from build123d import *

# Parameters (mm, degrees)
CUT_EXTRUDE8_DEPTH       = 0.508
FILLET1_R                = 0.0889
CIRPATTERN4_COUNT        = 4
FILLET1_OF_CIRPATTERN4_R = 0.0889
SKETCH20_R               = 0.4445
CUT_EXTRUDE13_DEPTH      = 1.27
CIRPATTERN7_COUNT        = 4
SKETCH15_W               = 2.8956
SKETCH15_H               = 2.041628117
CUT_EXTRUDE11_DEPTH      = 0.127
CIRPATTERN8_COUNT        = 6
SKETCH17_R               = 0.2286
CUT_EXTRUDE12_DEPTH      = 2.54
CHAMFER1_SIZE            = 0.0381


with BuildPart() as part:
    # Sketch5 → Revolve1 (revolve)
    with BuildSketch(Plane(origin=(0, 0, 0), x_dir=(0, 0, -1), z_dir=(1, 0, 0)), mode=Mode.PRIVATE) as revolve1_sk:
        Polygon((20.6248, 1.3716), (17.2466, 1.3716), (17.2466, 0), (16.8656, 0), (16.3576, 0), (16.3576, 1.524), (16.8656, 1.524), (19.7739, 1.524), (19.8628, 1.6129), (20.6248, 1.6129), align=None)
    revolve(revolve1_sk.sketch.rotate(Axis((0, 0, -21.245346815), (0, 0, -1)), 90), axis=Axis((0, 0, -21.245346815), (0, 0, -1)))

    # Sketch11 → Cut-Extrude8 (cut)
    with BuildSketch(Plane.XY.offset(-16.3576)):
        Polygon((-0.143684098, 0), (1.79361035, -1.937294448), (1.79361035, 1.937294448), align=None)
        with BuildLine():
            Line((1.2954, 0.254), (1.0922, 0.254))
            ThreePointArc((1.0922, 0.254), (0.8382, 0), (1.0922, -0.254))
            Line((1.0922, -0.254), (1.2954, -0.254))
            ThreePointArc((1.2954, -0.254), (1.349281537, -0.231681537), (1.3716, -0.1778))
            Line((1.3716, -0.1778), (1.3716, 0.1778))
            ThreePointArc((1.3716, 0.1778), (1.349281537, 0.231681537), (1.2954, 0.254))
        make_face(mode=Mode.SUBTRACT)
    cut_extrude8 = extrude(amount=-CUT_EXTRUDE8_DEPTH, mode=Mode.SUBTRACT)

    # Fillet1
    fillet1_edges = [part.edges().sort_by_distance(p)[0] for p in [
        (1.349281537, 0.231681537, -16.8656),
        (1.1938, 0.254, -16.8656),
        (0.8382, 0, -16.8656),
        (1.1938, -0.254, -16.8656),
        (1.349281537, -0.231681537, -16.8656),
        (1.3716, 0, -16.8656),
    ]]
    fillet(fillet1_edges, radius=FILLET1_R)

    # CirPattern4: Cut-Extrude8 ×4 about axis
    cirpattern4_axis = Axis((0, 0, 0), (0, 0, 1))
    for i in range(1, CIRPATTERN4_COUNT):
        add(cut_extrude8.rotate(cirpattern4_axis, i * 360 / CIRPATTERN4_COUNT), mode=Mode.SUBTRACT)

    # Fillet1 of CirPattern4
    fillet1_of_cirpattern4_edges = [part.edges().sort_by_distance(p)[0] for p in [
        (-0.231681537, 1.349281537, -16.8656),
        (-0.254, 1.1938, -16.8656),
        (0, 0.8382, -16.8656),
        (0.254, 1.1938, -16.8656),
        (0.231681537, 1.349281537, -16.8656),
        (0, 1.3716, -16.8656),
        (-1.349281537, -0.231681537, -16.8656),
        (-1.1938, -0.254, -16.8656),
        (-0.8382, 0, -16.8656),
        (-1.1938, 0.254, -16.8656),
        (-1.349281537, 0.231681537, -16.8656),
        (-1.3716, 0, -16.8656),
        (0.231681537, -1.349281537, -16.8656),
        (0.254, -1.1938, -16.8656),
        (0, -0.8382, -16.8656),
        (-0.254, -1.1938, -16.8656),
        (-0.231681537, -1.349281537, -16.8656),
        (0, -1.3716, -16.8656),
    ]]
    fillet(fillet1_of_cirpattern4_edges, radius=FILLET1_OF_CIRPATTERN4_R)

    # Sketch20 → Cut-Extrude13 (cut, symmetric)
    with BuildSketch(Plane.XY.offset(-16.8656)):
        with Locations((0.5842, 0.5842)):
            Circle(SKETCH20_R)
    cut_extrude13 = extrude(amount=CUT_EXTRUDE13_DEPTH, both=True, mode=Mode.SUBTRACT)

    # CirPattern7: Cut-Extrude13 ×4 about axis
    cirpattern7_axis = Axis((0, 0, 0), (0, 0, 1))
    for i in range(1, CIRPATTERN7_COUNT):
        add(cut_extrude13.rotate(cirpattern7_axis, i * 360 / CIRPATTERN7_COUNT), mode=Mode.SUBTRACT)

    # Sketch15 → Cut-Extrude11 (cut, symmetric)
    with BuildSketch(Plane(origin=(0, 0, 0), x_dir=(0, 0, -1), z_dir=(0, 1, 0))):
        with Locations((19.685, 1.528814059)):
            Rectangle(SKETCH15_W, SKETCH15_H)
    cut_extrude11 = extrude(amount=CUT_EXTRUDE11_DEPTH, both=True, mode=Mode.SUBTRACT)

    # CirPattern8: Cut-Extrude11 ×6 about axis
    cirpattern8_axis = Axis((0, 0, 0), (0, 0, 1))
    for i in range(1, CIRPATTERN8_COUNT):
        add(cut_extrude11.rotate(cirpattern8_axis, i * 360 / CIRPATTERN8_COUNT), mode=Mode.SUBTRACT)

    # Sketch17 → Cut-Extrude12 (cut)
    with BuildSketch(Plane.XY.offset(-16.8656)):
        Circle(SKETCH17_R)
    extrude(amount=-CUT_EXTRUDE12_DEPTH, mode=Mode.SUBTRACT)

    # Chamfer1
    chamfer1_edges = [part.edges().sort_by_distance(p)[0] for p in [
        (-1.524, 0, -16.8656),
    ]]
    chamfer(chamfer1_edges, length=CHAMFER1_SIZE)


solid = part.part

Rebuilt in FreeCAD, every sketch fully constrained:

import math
import FreeCAD as App
import Part
import Sketcher
Q = App.Units.Quantity


def edges_at(feature, points):
    """Names of the edges that pass closest to the given points."""
    edges = feature.Shape.Edges
    near = lambda p: min(range(len(edges)), key=lambda i: edges[i].distToShape(Part.Vertex(*p))[0])
    return sorted({f"Edge{near(p) + 1}" for p in points})


def add_polygon(sketch, points):
    """Adds a closed chain of lines whose ends are joined by coincident constraints."""
    first, n = sketch.GeometryCount, len(points)
    for a, b in zip(points, points[1:] + points[:1]):
        sketch.addGeometry(Part.LineSegment(App.Vector(*a, 0), App.Vector(*b, 0)), False)
    for i in range(n):
        sketch.addConstraint(Sketcher.Constraint("Coincident", first + i, 2, first + (i + 1) % n, 1))

doc = App.newDocument("Part")
body = doc.addObject("PartDesign::Body", "Body")

# Sketch on YZ plane
sketch1 = body.newObject("Sketcher::SketchObject", "Sketch")
sketch1.AttachmentSupport = (doc.getObject("YZ_Plane"), [""])
sketch1.MapMode = "FlatFace"
add_polygon(sketch1, [(1.37, -17.25), (1.37, -20.62), (1.61, -20.62), (1.61, -19.86), (1.52, -19.77), (1.52, -16.36), (0, -16.36), (0, -17.25)])  # lines 0-7
sketch1.addConstraint(Sketcher.Constraint("Vertical", 0))
sketch1.addConstraint(Sketcher.Constraint("Horizontal", 1))
sketch1.addConstraint(Sketcher.Constraint("Vertical", 2))
sketch1.addConstraint(Sketcher.Constraint("Vertical", 4))
sketch1.addConstraint(Sketcher.Constraint("Horizontal", 5))
sketch1.addConstraint(Sketcher.Constraint("Vertical", 6))
sketch1.addConstraint(Sketcher.Constraint("Horizontal", 7))
sketch1.addConstraint(Sketcher.Constraint("PointOnObject", 5, 2, -2))
sketch1.addConstraint(Sketcher.Constraint("Angle", 3, Q("135 deg")))
sketch1.addConstraint(Sketcher.Constraint("DistanceX", 5, 2, 5, 1, Q("0.06 in")))
sketch1.addConstraint(Sketcher.Constraint("DistanceY", 2, 1, 2, 2, Q("0.03 in")))
sketch1.addConstraint(Sketcher.Constraint("DistanceX", 7, 1, 7, 2, Q("0.054 in")))
sketch1.addConstraint(Sketcher.Constraint("DistanceY", 0, 2, 0, 1, Q("0.133 in")))
sketch1.addConstraint(Sketcher.Constraint("DistanceY", 6, 2, 6, 1, Q("0.035 in")))
sketch1.addConstraint(Sketcher.Constraint("DistanceX", 1, 1, 1, 2, Q("0.0095 in")))
sketch1.addConstraint(Sketcher.Constraint("DistanceY", 0, 2, -1, 1, Q("0.812 in")))
revolution = body.newObject("PartDesign::Revolution", "Revolution")
revolution.Profile = sketch1
revolution.ReferenceAxis = (sketch1, ["V_Axis"])
revolution.Angle = 360

# Sketch on XY plane
sketch2 = body.newObject("Sketcher::SketchObject", "Sketch001")
sketch2.AttachmentSupport = (doc.getObject("XY_Plane"), [""])
sketch2.MapMode = "FlatFace"
sketch2.AttachmentOffset = App.Placement(App.Vector(0, 0, -0.644 * 25.4), App.Rotation())
add_polygon(sketch2, [(-0.14, 0), (1.79, -1.94), (1.79, 1.94)])  # lines 0-2
sketch2.addGeometry(Part.LineSegment(App.Vector(1.09, 0.25, 0), App.Vector(1.3, 0.25, 0)), False)  # 3
sketch2.addGeometry(Part.ArcOfCircle(Part.Circle(App.Vector(1.3, 0.18, 0), App.Vector(0, 0, 1), 0.08), math.radians(0), math.radians(90)), False)  # 4
sketch2.addGeometry(Part.LineSegment(App.Vector(1.37, 0.18, 0), App.Vector(1.37, -0.18, 0)), False)  # 5
sketch2.addGeometry(Part.ArcOfCircle(Part.Circle(App.Vector(1.3, -0.18, 0), App.Vector(0, 0, 1), 0.08), math.radians(-90), math.radians(0)), False)  # 6
sketch2.addGeometry(Part.LineSegment(App.Vector(1.3, -0.25, 0), App.Vector(1.09, -0.25, 0)), False)  # 7
sketch2.addGeometry(Part.ArcOfCircle(Part.Circle(App.Vector(1.09, 0, 0), App.Vector(0, 0, 1), 0.25), math.radians(90), math.radians(270)), False)  # 8
sketch2.addConstraint(Sketcher.Constraint("Tangent", 3, 2, 4, 2))
sketch2.addConstraint(Sketcher.Constraint("Tangent", 4, 1, 5, 1))
sketch2.addConstraint(Sketcher.Constraint("Tangent", 5, 2, 6, 2))
sketch2.addConstraint(Sketcher.Constraint("Tangent", 6, 1, 7, 1))
sketch2.addConstraint(Sketcher.Constraint("Tangent", 7, 2, 8, 2))
sketch2.addConstraint(Sketcher.Constraint("Tangent", 8, 1, 3, 1))
sketch2.addConstraint(Sketcher.Constraint("Vertical", 1))
sketch2.addConstraint(Sketcher.Constraint("Horizontal", 3))
sketch2.addConstraint(Sketcher.Constraint("Vertical", 5))
sketch2.addConstraint(Sketcher.Constraint("Horizontal", 7))
sketch2.addConstraint(Sketcher.Constraint("Equal", 4, 6))
sketch2.addConstraint(Sketcher.Constraint("PointOnObject", 8, 3, -1))
sketch2.addConstraint(Sketcher.Constraint("PointOnObject", 2, 2, -1))
sketch2.addConstraint(Sketcher.Constraint("Perpendicular", 0, 2))
sketch2.addConstraint(Sketcher.Constraint("Equal", 0, 2))
sketch2.addConstraint(Sketcher.Constraint("Radius", 8, Q("0.01 in")))
sketch2.addConstraint(Sketcher.Constraint("Radius", 4, Q("0.003 in")))
sketch2.addConstraint(Sketcher.Constraint("DistanceX", 3, 1, 3, 2, Q("0.008 in")))
sketch2.addConstraint(Sketcher.Constraint("DistanceX", -1, 1, 4, 3, Q("0.051 in")))
sketch2.addConstraint(Sketcher.Constraint("DistanceY", 1, 1, 1, 2, Q("3.874589 mm")))
sketch2.addConstraint(Sketcher.Constraint("DistanceX", -1, 1, 0, 2, Q("1.79361 mm")))
pocket1 = body.newObject("PartDesign::Pocket", "Pocket")
pocket1.Profile = sketch2
pocket1.Length = Q("0.02 in")
doc.recompute()

fillet = body.newObject("PartDesign::Fillet", "Fillet")
fillet.Base = (pocket1, edges_at(pocket1, [
    (1.349, 0.232, -16.866),
    (1.194, 0.254, -16.866),
    (0.838, 0, -16.866),
    (1.194, -0.254, -16.866),
    (1.349, -0.232, -16.866),
    (1.372, 0, -16.866),
]))
fillet.Radius = Q("0.0035 in")
doc.recompute()

polarpattern = body.newObject("PartDesign::PolarPattern", "PolarPattern")
polarpattern.Originals = [pocket1]
polarpattern.Axis = (doc.getObject("Z_Axis"), [""])
polarpattern.Angle = 360
polarpattern.Occurrences = 4
body.Tip = polarpattern
doc.recompute()

fillet2 = body.newObject("PartDesign::Fillet", "Fillet001")
fillet2.Base = (polarpattern, edges_at(polarpattern, [
    (-0.232, 1.349, -16.866),
    (-0.254, 1.194, -16.866),
    (0, 0.838, -16.866),
    (0.254, 1.194, -16.866),
    (0.232, 1.349, -16.866),
    (0, 1.372, -16.866),
    (-1.349, -0.232, -16.866),
    (-1.194, -0.254, -16.866),
    (-0.838, 0, -16.866),
    (-1.194, 0.254, -16.866),
    (-1.349, 0.232, -16.866),
    (-1.372, 0, -16.866),
    (0.232, -1.349, -16.866),
    (0.254, -1.194, -16.866),
    (0, -0.838, -16.866),
    (-0.254, -1.194, -16.866),
    (-0.232, -1.349, -16.866),
    (0, -1.372, -16.866),
]))
fillet2.Radius = Q("0.0035 in")

# Sketch on XY plane
sketch3 = body.newObject("Sketcher::SketchObject", "Sketch002")
sketch3.AttachmentSupport = (doc.getObject("XY_Plane"), [""])
sketch3.MapMode = "FlatFace"
sketch3.AttachmentOffset = App.Placement(App.Vector(0, 0, -0.664 * 25.4), App.Rotation())
sketch3.addGeometry(Part.Circle(App.Vector(0.58, 0.58, 0), App.Vector(0, 0, 1), 0.44), False)
sketch3.addConstraint(Sketcher.Constraint("Diameter", 0, Q("0.035 in")))
sketch3.addConstraint(Sketcher.Constraint("DistanceX", -1, 1, 0, 3, Q("0.023 in")))
sketch3.addConstraint(Sketcher.Constraint("DistanceY", -1, 1, 0, 3, Q("0.023 in")))
pocket2 = body.newObject("PartDesign::Pocket", "Pocket001")
pocket2.Profile = sketch3
pocket2.Length = Q("0.1 in")
pocket2.Midplane = True
doc.recompute()

polarpattern2 = body.newObject("PartDesign::PolarPattern", "PolarPattern001")
polarpattern2.Originals = [pocket2]
polarpattern2.Axis = (doc.getObject("Z_Axis"), [""])
polarpattern2.Angle = 360
polarpattern2.Occurrences = 4
body.Tip = polarpattern2

# Sketch on XZ plane
sketch4 = body.newObject("Sketcher::SketchObject", "Sketch003")
sketch4.AttachmentSupport = (doc.getObject("XZ_Plane"), [""])
sketch4.MapMode = "FlatFace"
add_polygon(sketch4, [(-2.5, -18.2), (-0.5, -18.2), (-0.5, -21.1), (-2.5, -21.1)])  # lines 0-3
sketch4.addConstraint(Sketcher.Constraint("Horizontal", 0))
sketch4.addConstraint(Sketcher.Constraint("Vertical", 1))
sketch4.addConstraint(Sketcher.Constraint("Horizontal", 2))
sketch4.addConstraint(Sketcher.Constraint("Vertical", 3))
sketch4.addConstraint(Sketcher.Constraint("DistanceY", 1, 2, 1, 1, Q("0.114 in")))
sketch4.addConstraint(Sketcher.Constraint("DistanceX", 0, 2, -1, 1, Q("0.02 in")))
sketch4.addConstraint(Sketcher.Constraint("DistanceY", 0, 2, -1, 1, Q("0.718 in")))
sketch4.addConstraint(Sketcher.Constraint("DistanceX", 0, 1, 0, 2, Q("2.041628 mm")))
pocket3 = body.newObject("PartDesign::Pocket", "Pocket002")
pocket3.Profile = sketch4
pocket3.Length = Q("0.01 in")
pocket3.Midplane = True
doc.recompute()

polarpattern3 = body.newObject("PartDesign::PolarPattern", "PolarPattern002")
polarpattern3.Originals = [pocket3]
polarpattern3.Axis = (doc.getObject("Z_Axis"), [""])
polarpattern3.Angle = 360
polarpattern3.Occurrences = 6
body.Tip = polarpattern3

# Sketch on XY plane
sketch5 = body.newObject("Sketcher::SketchObject", "Sketch004")
sketch5.AttachmentSupport = (doc.getObject("XY_Plane"), [""])
sketch5.MapMode = "FlatFace"
sketch5.AttachmentOffset = App.Placement(App.Vector(0, 0, -0.664 * 25.4), App.Rotation())
sketch5.addGeometry(Part.Circle(App.Vector(0, 0, 0), App.Vector(0, 0, 1), 0.23), False)
sketch5.addConstraint(Sketcher.Constraint("Coincident", 0, 3, -1, 1))
sketch5.addConstraint(Sketcher.Constraint("Diameter", 0, Q("0.018 in")))
pocket4 = body.newObject("PartDesign::Pocket", "Pocket003")
pocket4.Profile = sketch5
pocket4.Length = Q("0.1 in")
doc.recompute()

chamfer = body.newObject("PartDesign::Chamfer", "Chamfer")
chamfer.Base = (pocket4, edges_at(pocket4, [(-1.524, 0, -16.866)]))
chamfer.Size = Q("0.0015 in")

doc.recompute()
